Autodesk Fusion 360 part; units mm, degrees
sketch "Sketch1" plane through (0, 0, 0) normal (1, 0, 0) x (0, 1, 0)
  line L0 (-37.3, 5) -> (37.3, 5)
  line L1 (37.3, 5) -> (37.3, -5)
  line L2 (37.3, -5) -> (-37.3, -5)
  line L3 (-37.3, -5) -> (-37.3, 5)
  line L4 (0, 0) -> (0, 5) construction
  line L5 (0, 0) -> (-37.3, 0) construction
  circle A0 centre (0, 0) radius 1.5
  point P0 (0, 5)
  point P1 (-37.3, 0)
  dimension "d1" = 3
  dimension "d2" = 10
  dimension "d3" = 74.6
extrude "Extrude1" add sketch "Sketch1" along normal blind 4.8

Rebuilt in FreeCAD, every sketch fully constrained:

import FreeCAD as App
import Part
import Sketcher
from FreeCAD import Vector


def add_polygon(sketch, points):
    """Adds a closed chain of lines whose ends are joined by coincident constraints."""
    first, n = sketch.GeometryCount, len(points)
    for a, b in zip(points, points[1:] + points[:1]):
        sketch.addGeometry(Part.LineSegment(App.Vector(*a, 0), App.Vector(*b, 0)), False)
    for i in range(n):
        sketch.addConstraint(Sketcher.Constraint("Coincident", first + i, 2, first + (i + 1) % n, 1))

doc = App.newDocument("Part")
params = doc.addObject("Spreadsheet::Sheet", "Params")
for row, (alias, value) in enumerate([
    ("sketch1_diameter", "3 mm"),
    ("sketch1_height", "10 mm"),
    ("sketch1_width", "74.6 mm"),
    ("pad1_length", "4.8 mm"),
], start=1):
    params.set(f"A{row}", alias)
    params.set(f"B{row}", "=" + value)
    params.setAlias(f"B{row}", alias)

body = doc.addObject("PartDesign::Body", "Body")

# Sketch on YZ plane
sketch1 = body.newObject("Sketcher::SketchObject", "Sketch")
sketch1.AttachmentSupport = (doc.getObject("YZ_Plane"), [""])
sketch1.MapMode = "FlatFace"
add_polygon(sketch1, [(37.3, 5), (-37.3, 5), (-37.3, -5), (37.3, -5)])  # lines 0-3
sketch1.addGeometry(Part.Circle(Vector(0, 0, 0), Vector(0, 0, 1), 1.5), False)  # 4
sketch1.addConstraint(Sketcher.Constraint("Horizontal", 0))
sketch1.addConstraint(Sketcher.Constraint("Vertical", 1))
sketch1.addConstraint(Sketcher.Constraint("Horizontal", 2))
sketch1.addConstraint(Sketcher.Constraint("Vertical", 3))
sketch1.addConstraint(Sketcher.Constraint("Coincident", 4, 3, -1, 1))
sketch1.addConstraint(Sketcher.Constraint("Symmetric", 0, 2, 2, 2, -1, 1))
sketch1.addConstraint(Sketcher.Constraint("Diameter", 4, 3.0))
sketch1.addConstraint(Sketcher.Constraint("DistanceY", 1, 2, 1, 1, 10.0))
sketch1.addConstraint(Sketcher.Constraint("DistanceX", 0, 2, 0, 1, 74.6))
sketch1.setExpression("Constraints[10]", "Params.sketch1_diameter")
sketch1.setExpression("Constraints[11]", "Params.sketch1_height")
sketch1.setExpression("Constraints[12]", "Params.sketch1_width")
pad1 = body.newObject("PartDesign::Pad", "Pad")
pad1.Profile = sketch1
pad1.setExpression("Length", "Params.pad1_length")

doc.recompute()
